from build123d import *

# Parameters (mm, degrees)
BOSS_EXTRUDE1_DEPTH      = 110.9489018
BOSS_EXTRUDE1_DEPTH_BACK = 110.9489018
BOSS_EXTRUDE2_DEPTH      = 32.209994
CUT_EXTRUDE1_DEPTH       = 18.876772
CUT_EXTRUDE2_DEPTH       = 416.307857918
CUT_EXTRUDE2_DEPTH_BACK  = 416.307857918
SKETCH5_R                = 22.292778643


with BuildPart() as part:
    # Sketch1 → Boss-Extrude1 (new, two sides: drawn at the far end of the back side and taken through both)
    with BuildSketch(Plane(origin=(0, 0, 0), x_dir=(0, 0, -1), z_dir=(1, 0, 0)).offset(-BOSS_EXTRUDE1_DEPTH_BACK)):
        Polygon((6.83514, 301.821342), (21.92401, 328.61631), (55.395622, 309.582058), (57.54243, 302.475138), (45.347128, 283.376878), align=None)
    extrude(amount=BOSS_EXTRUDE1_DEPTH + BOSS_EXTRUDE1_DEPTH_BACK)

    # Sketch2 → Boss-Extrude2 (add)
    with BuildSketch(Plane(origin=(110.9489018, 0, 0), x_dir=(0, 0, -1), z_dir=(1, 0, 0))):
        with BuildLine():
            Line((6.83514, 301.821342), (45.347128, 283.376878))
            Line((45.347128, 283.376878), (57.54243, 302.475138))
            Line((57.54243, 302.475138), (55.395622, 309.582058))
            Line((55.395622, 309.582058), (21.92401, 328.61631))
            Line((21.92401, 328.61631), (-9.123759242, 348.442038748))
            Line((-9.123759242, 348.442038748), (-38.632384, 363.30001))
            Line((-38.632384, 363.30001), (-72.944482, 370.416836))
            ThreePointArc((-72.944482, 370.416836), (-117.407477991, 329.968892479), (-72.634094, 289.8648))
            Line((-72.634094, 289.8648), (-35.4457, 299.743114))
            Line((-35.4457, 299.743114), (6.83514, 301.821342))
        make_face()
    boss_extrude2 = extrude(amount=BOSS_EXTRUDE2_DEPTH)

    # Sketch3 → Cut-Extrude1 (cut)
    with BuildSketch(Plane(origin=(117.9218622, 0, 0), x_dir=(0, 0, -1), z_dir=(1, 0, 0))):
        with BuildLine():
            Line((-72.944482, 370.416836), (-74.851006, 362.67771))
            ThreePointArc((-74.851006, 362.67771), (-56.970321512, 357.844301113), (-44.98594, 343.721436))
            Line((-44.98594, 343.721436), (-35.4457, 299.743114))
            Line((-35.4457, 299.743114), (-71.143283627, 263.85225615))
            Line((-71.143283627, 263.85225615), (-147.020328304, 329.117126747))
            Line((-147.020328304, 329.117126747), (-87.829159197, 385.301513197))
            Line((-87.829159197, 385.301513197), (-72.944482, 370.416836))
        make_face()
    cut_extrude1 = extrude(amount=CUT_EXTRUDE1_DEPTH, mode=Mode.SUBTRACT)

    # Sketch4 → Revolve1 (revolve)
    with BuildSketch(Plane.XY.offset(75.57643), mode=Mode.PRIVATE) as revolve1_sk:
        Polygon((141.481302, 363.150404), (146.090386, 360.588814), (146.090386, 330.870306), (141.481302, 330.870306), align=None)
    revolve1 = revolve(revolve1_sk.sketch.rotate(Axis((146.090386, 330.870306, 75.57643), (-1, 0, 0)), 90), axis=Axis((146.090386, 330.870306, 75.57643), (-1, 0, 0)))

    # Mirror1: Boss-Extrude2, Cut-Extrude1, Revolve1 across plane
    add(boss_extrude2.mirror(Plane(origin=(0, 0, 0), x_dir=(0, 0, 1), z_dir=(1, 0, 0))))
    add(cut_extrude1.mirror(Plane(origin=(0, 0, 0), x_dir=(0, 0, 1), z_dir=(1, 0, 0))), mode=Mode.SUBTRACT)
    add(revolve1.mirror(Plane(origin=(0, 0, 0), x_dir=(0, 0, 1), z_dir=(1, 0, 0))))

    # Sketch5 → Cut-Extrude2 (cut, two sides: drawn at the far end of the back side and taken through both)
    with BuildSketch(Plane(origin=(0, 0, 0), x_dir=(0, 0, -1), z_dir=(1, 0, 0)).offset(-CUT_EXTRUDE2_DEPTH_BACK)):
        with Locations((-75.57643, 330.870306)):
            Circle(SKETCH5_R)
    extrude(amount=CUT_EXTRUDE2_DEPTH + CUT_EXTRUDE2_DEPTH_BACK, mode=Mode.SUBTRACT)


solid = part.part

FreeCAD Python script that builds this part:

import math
import FreeCAD as App
import Part
import Sketcher
from FreeCAD import Vector
Q = App.Units.Quantity


def add_polygon(sketch, points):
    """Adds a closed chain of lines whose ends are joined by coincident constraints."""
    first, n = sketch.GeometryCount, len(points)
    for a, b in zip(points, points[1:] + points[:1]):
        sketch.addGeometry(Part.LineSegment(App.Vector(*a, 0), App.Vector(*b, 0)), False)
    for i in range(n):
        sketch.addConstraint(Sketcher.Constraint("Coincident", first + i, 2, first + (i + 1) % n, 1))

doc = App.newDocument("Part")
params = doc.addObject("Spreadsheet::Sheet", "Params")
for row, (alias, value) in enumerate([
    ("pad1_length", "110.948902 mm"),
    ("pad1_length2", "110.948902 mm"),
    ("pad2_length", "32.209994 mm"),
    ("pocket1_length", "18.876772 mm"),
    ("revolution_angle", "360 deg"),
], start=1):
    params.set(f"A{row}", alias)
    params.set(f"B{row}", "=" + value)
    params.setAlias(f"B{row}", alias)

body = doc.addObject("PartDesign::Body", "Body")

# Sketch on YZ plane
sketch1 = body.newObject("Sketcher::SketchObject", "Sketch")
sketch1.AttachmentSupport = (doc.getObject("YZ_Plane"), [""])
sketch1.MapMode = "FlatFace"
add_polygon(sketch1, [(328.61631, -21.92401), (301.821342, -6.83514), (283.376878, -45.347128), (302.475138, -57.54243), (309.582058, -55.395622)])  # lines 0-4
sketch1.addConstraint([
    Sketcher.Constraint("Distance", 0, 30.75133),
    Sketcher.Constraint("Distance", 3, 7.424089),
    Sketcher.Constraint("DistanceX", -1, 1, 0, 2, 301.821342),
    Sketcher.Constraint("DistanceY", 0, 2, -1, 1, 6.83514),
    Sketcher.Constraint("DistanceX", -1, 1, 2, 2, 302.475138),
    Sketcher.Constraint("DistanceY", 2, 2, -1, 1, 57.54243),
    Sketcher.Constraint("DistanceX", -1, 1, 3, 2, 309.582058),
    Sketcher.Constraint("DistanceX", -1, 1, 4, 2, 328.61631),
    Sketcher.Constraint("DistanceX", 1, 2, 2, 2, 19.09826),
    Sketcher.Constraint("Distance", 1, 42.700954),
])
pad1 = body.newObject("PartDesign::Pad", "Pad")
pad1.Profile = sketch1
pad1.Type = "TwoLengths"
pad1.setExpression("Length", "Params.pad1_length")
pad1.setExpression("Length2", "Params.pad1_length2")

# Sketch on YZ plane
sketch2 = body.newObject("Sketcher::SketchObject", "Sketch001")
sketch2.AttachmentSupport = (doc.getObject("YZ_Plane"), [""])
sketch2.MapMode = "FlatFace"
sketch2.AttachmentOffset = App.Placement(Vector(0, 0, 110.948902), App.Rotation())
sketch2.addGeometry([
    Part.LineSegment(Vector(301.821342, -6.83514, 0), Vector(283.376878, -45.347128, 0)),  # 0
    Part.LineSegment(Vector(283.376878, -45.347128, 0), Vector(302.475138, -57.54243, 0)),  # 1
    Part.LineSegment(Vector(302.475138, -57.54243, 0), Vector(309.582058, -55.395622, 0)),  # 2
    Part.LineSegment(Vector(309.582058, -55.395622, 0), Vector(328.61631, -21.92401, 0)),  # 3
    Part.LineSegment(Vector(328.61631, -21.92401, 0), Vector(348.442039, 9.123759, 0)),  # 4
    Part.LineSegment(Vector(348.442039, 9.123759, 0), Vector(363.30001, 38.632384, 0)),  # 5
    Part.LineSegment(Vector(363.30001, 38.632384, 0), Vector(370.416836, 72.944482, 0)),  # 6
    Part.ArcOfCircle(Part.Circle(Vector(330.124901, 76.920173, 0), Vector(0, 0, 1), 40.487605), math.radians(-5.635256), math.radians(186.076805)),  # 7
    Part.LineSegment(Vector(289.8648, 72.634094, 0), Vector(299.743114, 35.4457, 0)),  # 8
    Part.LineSegment(Vector(299.743114, 35.4457, 0), Vector(301.821342, -6.83514, 0)),  # 9
], False)
sketch2.addConstraint([
    Sketcher.Constraint("Coincident", 0, 2, 1, 1),
    Sketcher.Constraint("Coincident", 1, 2, 2, 1),
    Sketcher.Constraint("Coincident", 2, 2, 3, 1),
    Sketcher.Constraint("Coincident", 3, 2, 4, 1),
    Sketcher.Constraint("Coincident", 4, 2, 5, 1),
    Sketcher.Constraint("Coincident", 5, 2, 6, 1),
    Sketcher.Constraint("Coincident", 6, 2, 7, 1),
    Sketcher.Constraint("Coincident", 7, 2, 8, 1),
    Sketcher.Constraint("Coincident", 8, 2, 9, 1),
    Sketcher.Constraint("Coincident", 9, 2, 0, 1),
    Sketcher.Constraint("Perpendicular", 1, 4),
    Sketcher.Constraint("Radius", 7, 40.487605),
    Sketcher.Constraint("Distance", 4, 36.8378),
    Sketcher.Constraint("DistanceX", -1, 1, 7, 3, 330.124901),
    Sketcher.Constraint("DistanceX", -1, 1, 7, 2, 289.8648),
    Sketcher.Constraint("DistanceY", -1, 1, 8, 2, 35.4457),
    Sketcher.Constraint("DistanceY", 0, 2, 7, 3, 122.267301),
    Sketcher.Constraint("DistanceX", 1, 2, 4, 2, 45.966901),
    Sketcher.Constraint("DistanceX", 3, 2, 5, 2, 34.6837),
    Sketcher.Constraint("DistanceY", 9, 2, 4, 2, 15.958899),
    Sketcher.Constraint("Distance", 2, 7.424089),
    Sketcher.Constraint("DistanceX", -1, 1, 1, 2, 302.475138),
    Sketcher.Constraint("DistanceY", 1, 2, -1, 1, 57.54243),
    Sketcher.Constraint("DistanceX", -1, 1, 2, 2, 309.582058),
    Sketcher.Constraint("DistanceX", -1, 1, 3, 2, 328.61631),
    Sketcher.Constraint("DistanceY", 3, 2, -1, 1, 21.92401),
    Sketcher.Constraint("DistanceY", -1, 1, 6, 2, 72.944482),
    Sketcher.Constraint("DistanceX", -1, 1, 9, 2, 301.821342),
    Sketcher.Constraint("DistanceX", 0, 2, 1, 2, 19.09826),
    Sketcher.Constraint("DistanceY", 5, 2, 7, 3, 38.287789),
    Sketcher.Constraint("DistanceX", 8, 2, 9, 2, 2.078228),
])
pad2 = body.newObject("PartDesign::Pad", "Pad001")
pad2.Profile = sketch2
pad2.setExpression("Length", "Params.pad2_length")

# Sketch on YZ plane
sketch3 = body.newObject("Sketcher::SketchObject", "Sketch002")
sketch3.AttachmentSupport = (doc.getObject("YZ_Plane"), [""])
sketch3.MapMode = "FlatFace"
sketch3.AttachmentOffset = App.Placement(Vector(0, 0, 117.921862), App.Rotation())
sketch3.addGeometry([
    Part.LineSegment(Vector(362.67771, 74.851006, 0), Vector(370.416836, 72.944482, 0)),  # 0
    Part.LineSegment(Vector(370.416836, 72.944482, 0), Vector(385.301513, 87.829159, 0)),  # 1
    Part.LineSegment(Vector(385.301513, 87.829159, 0), Vector(329.117127, 147.020328, 0)),  # 2
    Part.LineSegment(Vector(329.117127, 147.020328, 0), Vector(263.852256, 71.143284, 0)),  # 3
    Part.LineSegment(Vector(263.852256, 71.143284, 0), Vector(299.743114, 35.4457, 0)),  # 4
    Part.LineSegment(Vector(299.743114, 35.4457, 0), Vector(343.721436, 44.98594, 0)),  # 5
    Part.ArcOfCircle(Part.Circle(Vector(331.518321, 73.680229, 0), Vector(0, 0, 1), 31.181377), math.radians(-66.960908), math.radians(2.151808)),  # 6
], False)
sketch3.addConstraint([
    Sketcher.Constraint("Coincident", 0, 2, 1, 1),
    Sketcher.Constraint("Coincident", 1, 2, 2, 1),
    Sketcher.Constraint("Coincident", 2, 2, 3, 1),
    Sketcher.Constraint("Coincident", 3, 2, 4, 1),
    Sketcher.Constraint("Coincident", 4, 2, 5, 1),
    Sketcher.Constraint("Coincident", 5, 2, 6, 1),
    Sketcher.Constraint("Coincident", 6, 2, 0, 1),
    Sketcher.Constraint("Angle", 1, Q("45 deg")),
    Sketcher.Constraint("Radius", 6, 31.181377),
    Sketcher.Constraint("DistanceY", -1, 1, 4, 2, 35.4457),
    Sketcher.Constraint("DistanceY", 6, 3, 2, 2, 73.340099),
    Sketcher.Constraint("DistanceY", 3, 2, 0, 2, 1.801198),
    Sketcher.Constraint("DistanceX", 4, 2, 1, 2, 85.558399),
    Sketcher.Constraint("DistanceX", 5, 2, 0, 2, 26.6954),
    Sketcher.Constraint("Distance", 3, 100.084111),
    Sketcher.Constraint("Distance", 5, 45.001211),
    Sketcher.Constraint("DistanceX", -1, 1, 6, 3, 331.518321),
    Sketcher.Constraint("DistanceY", -1, 1, 6, 3, 73.680229),
    Sketcher.Constraint("DistanceY", -1, 1, 0, 2, 72.944482),
    Sketcher.Constraint("DistanceY", -1, 1, 1, 2, 87.829159),
    Sketcher.Constraint("DistanceX", -1, 1, 6, 2, 362.67771),
    Sketcher.Constraint("DistanceX", 2, 2, 0, 2, 41.299709),
])
pocket1 = body.newObject("PartDesign::Pocket", "Pocket")
pocket1.Profile = sketch3
pocket1.setExpression("Length", "Params.pocket1_length")
pocket1.Reversed = True

# Sketch on XY plane
sketch4 = body.newObject("Sketcher::SketchObject", "Sketch003")
sketch4.AttachmentSupport = (doc.getObject("XY_Plane"), [""])
sketch4.MapMode = "FlatFace"
sketch4.AttachmentOffset = App.Placement(Vector(0, 0, 75.57643), App.Rotation())
add_polygon(sketch4, [(146.090386, 360.588814), (141.481302, 363.150404), (141.481302, 330.870306), (146.090386, 330.870306)])  # lines 0-3
sketch4.addGeometry(Part.LineSegment(Vector(146.090386, 330.870306, 0), Vector(141.481302, 330.870306, 0)), True)  # axis
sketch4.addConstraint([
    Sketcher.Constraint("Vertical", 1),
    Sketcher.Constraint("Horizontal", 2),
    Sketcher.Constraint("Vertical", 3),
    Sketcher.Constraint("Horizontal", 4),
    Sketcher.Constraint("Coincident", 4, 1, 2, 2),
    Sketcher.Constraint("Vertical", 0, 2, 4, 2),
    Sketcher.Constraint("DistanceX", -1, 1, 0, 2, 141.481302),
    Sketcher.Constraint("DistanceX", 2, 1, 2, 2, 4.609084),
    Sketcher.Constraint("DistanceY", 1, 2, 1, 1, 32.280098),
    Sketcher.Constraint("DistanceY", 3, 1, 3, 2, 29.718508),
    Sketcher.Constraint("DistanceY", -1, 1, 0, 2, 363.150404),
])
revolution = body.newObject("PartDesign::Revolution", "Revolution")
revolution.Profile = sketch4
revolution.ReferenceAxis = (sketch4, ["Axis0"])
revolution.setExpression("Angle", "Params.revolution_angle")
doc.recompute()

mirrored = body.newObject("PartDesign::Mirrored", "Mirrored")
mirrored.Originals = [pad2, pocket1, revolution]
mirrored.MirrorPlane = (doc.getObject("YZ_Plane"), [""])
body.Tip = mirrored

# Sketch on YZ plane
sketch5 = body.newObject("Sketcher::SketchObject", "Sketch004")
sketch5.AttachmentSupport = (doc.getObject("YZ_Plane"), [""])
sketch5.MapMode = "FlatFace"
sketch5.addGeometry(Part.Circle(Vector(330.870306, 75.57643, 0), Vector(0, 0, 1), 22.292779), False)
sketch5.addConstraint([
    Sketcher.Constraint("Diameter", 0, 44.585557),
    Sketcher.Constraint("DistanceY", -1, 1, 0, 3, 75.57643),
    Sketcher.Constraint("DistanceX", -1, 1, 0, 3, 330.870306),
])
pocket2 = body.newObject("PartDesign::Pocket", "Pocket001")
pocket2.Profile = sketch5
pocket2.Type = "ThroughAll"
pocket2.Midplane = True

doc.recompute()
